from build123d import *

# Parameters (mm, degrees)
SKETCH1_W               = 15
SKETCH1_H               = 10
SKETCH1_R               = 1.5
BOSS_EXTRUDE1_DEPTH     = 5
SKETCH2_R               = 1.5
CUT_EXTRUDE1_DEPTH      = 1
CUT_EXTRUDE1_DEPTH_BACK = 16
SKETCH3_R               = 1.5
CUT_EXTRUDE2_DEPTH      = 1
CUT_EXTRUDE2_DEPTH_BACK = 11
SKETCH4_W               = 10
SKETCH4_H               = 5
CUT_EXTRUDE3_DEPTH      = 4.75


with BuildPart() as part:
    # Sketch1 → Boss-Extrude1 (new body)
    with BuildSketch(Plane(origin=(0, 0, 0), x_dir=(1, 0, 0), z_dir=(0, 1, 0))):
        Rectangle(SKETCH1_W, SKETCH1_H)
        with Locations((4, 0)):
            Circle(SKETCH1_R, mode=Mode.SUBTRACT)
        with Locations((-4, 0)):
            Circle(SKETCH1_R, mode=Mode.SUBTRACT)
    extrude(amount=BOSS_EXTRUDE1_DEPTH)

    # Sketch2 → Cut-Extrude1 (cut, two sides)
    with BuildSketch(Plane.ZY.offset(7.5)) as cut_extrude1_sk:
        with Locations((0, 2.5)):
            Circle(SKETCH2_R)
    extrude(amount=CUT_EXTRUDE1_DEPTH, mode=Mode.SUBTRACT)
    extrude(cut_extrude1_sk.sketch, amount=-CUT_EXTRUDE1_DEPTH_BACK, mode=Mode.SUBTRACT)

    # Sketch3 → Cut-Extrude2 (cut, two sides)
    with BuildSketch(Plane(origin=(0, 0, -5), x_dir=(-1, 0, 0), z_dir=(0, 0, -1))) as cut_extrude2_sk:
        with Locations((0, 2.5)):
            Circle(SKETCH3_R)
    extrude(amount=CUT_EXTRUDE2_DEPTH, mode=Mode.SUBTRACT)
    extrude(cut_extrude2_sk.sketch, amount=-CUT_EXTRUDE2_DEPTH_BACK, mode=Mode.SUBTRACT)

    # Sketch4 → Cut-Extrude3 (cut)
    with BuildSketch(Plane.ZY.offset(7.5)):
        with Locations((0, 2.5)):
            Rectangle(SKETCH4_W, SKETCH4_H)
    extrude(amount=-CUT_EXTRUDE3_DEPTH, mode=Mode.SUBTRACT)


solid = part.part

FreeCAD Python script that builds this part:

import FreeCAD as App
import Part
import Sketcher

V = App.Vector


def add_polygon(sketch, points):
    """Adds a closed chain of lines whose ends are joined by coincident constraints."""
    first, n = sketch.GeometryCount, len(points)
    for a, b in zip(points, points[1:] + points[:1]):
        sketch.addGeometry(Part.LineSegment(App.Vector(*a, 0), App.Vector(*b, 0)), False)
    for i in range(n):
        sketch.addConstraint(Sketcher.Constraint("Coincident", first + i, 2, first + (i + 1) % n, 1))

doc = App.newDocument("Part")
body = doc.addObject("PartDesign::Body", "Body")

# Sketch on XZ plane
sketch1 = doc.addObject("Sketcher::SketchObject", "Sketch")
body.addObject(sketch1)
sketch1.AttachmentSupport = (doc.XZ_Plane, [""])
sketch1.MapMode = "FlatFace"
add_polygon(sketch1, [(-7.5, -5), (-7.5, 5), (7.5, 5), (7.5, -5)])  # lines 0-3
sketch1.addGeometry(Part.Circle(V(-4, 0, 0), V(0, 0, 1), 1.5), False)  # 4
sketch1.addGeometry(Part.Circle(V(4, 0, 0), V(0, 0, 1), 1.5), False)  # 5
sketch1.addConstraint([
    Sketcher.Constraint("Vertical", 0),
    Sketcher.Constraint("Horizontal", 1),
    Sketcher.Constraint("Vertical", 2),
    Sketcher.Constraint("Horizontal", 3),
    Sketcher.Constraint("Equal", 4, 5),
    Sketcher.Constraint("Symmetric", 4, 3, 5, 3, -1, 1),
    Sketcher.Constraint("Symmetric", 0, 2, 2, 2, -1, 1),
    Sketcher.Constraint("PointOnObject", 4, 3, -1),
    Sketcher.Constraint("Diameter", 4, 3.0),
    Sketcher.Constraint("DistanceX", 1, 1, 1, 2, 15.0),
    Sketcher.Constraint("DistanceY", 0, 1, 0, 2, 10.0),
    Sketcher.Constraint("DistanceX", 4, 3, -1, 1, 4.0),
])
pad1 = doc.addObject("PartDesign::Pad", "Pad")
body.addObject(pad1)
pad1.Profile = sketch1
pad1.Length = 5
pad1.Reversed = True

# Sketch on YZ plane
sketch2 = doc.addObject("Sketcher::SketchObject", "Sketch001")
body.addObject(sketch2)
sketch2.AttachmentSupport = (doc.YZ_Plane, [""])
sketch2.MapMode = "FlatFace"
sketch2.AttachmentOffset = App.Placement(V(0, 0, -7.5), App.Rotation())
sketch2.addGeometry(Part.Circle(V(2.5, 0, 0), V(0, 0, 1), 1.5), False)
sketch2.addConstraint([
    Sketcher.Constraint("PointOnObject", 0, 3, -1),
    Sketcher.Constraint("Diameter", 0, 3.0),
    Sketcher.Constraint("DistanceX", -1, 1, 0, 3, 2.5),
])
pocket1 = doc.addObject("PartDesign::Pocket", "Pocket")
body.addObject(pocket1)
pocket1.Profile = sketch2
pocket1.Type = "ThroughAll"
pocket1.Midplane = True

# Sketch on XY plane
sketch3 = doc.addObject("Sketcher::SketchObject", "Sketch002")
body.addObject(sketch3)
sketch3.AttachmentSupport = (doc.XY_Plane, [""])
sketch3.MapMode = "FlatFace"
sketch3.AttachmentOffset = App.Placement(V(0, 0, -5), App.Rotation())
sketch3.addGeometry(Part.Circle(V(0, 2.5, 0), V(0, 0, 1), 1.5), False)
sketch3.addConstraint([
    Sketcher.Constraint("PointOnObject", 0, 3, -2),
    Sketcher.Constraint("Diameter", 0, 3.0),
    Sketcher.Constraint("DistanceY", -1, 1, 0, 3, 2.5),
])
pocket2 = doc.addObject("PartDesign::Pocket", "Pocket001")
body.addObject(pocket2)
pocket2.Profile = sketch3
pocket2.Type = "ThroughAll"
pocket2.Midplane = True

# Sketch on YZ plane
sketch4 = doc.addObject("Sketcher::SketchObject", "Sketch003")
body.addObject(sketch4)
sketch4.AttachmentSupport = (doc.YZ_Plane, [""])
sketch4.MapMode = "FlatFace"
sketch4.AttachmentOffset = App.Placement(V(0, 0, -7.5), App.Rotation())
add_polygon(sketch4, [(5, -5), (0, -5), (0, 5), (5, 5)])  # lines 0-3
sketch4.addConstraint([
    Sketcher.Constraint("Horizontal", 0),
    Sketcher.Constraint("Vertical", 1),
    Sketcher.Constraint("Horizontal", 2),
    Sketcher.Constraint("Vertical", 3),
    Sketcher.Constraint("Symmetric", 0, 2, 1, 2, -1, 1),
    Sketcher.Constraint("DistanceX", 0, 2, 0, 1, 5.0),
    Sketcher.Constraint("DistanceY", 1, 1, 1, 2, 10.0),
])
pocket3 = doc.addObject("PartDesign::Pocket", "Pocket002")
body.addObject(pocket3)
pocket3.Profile = sketch4
pocket3.Length = 4.75
pocket3.Reversed = True

doc.recompute()
